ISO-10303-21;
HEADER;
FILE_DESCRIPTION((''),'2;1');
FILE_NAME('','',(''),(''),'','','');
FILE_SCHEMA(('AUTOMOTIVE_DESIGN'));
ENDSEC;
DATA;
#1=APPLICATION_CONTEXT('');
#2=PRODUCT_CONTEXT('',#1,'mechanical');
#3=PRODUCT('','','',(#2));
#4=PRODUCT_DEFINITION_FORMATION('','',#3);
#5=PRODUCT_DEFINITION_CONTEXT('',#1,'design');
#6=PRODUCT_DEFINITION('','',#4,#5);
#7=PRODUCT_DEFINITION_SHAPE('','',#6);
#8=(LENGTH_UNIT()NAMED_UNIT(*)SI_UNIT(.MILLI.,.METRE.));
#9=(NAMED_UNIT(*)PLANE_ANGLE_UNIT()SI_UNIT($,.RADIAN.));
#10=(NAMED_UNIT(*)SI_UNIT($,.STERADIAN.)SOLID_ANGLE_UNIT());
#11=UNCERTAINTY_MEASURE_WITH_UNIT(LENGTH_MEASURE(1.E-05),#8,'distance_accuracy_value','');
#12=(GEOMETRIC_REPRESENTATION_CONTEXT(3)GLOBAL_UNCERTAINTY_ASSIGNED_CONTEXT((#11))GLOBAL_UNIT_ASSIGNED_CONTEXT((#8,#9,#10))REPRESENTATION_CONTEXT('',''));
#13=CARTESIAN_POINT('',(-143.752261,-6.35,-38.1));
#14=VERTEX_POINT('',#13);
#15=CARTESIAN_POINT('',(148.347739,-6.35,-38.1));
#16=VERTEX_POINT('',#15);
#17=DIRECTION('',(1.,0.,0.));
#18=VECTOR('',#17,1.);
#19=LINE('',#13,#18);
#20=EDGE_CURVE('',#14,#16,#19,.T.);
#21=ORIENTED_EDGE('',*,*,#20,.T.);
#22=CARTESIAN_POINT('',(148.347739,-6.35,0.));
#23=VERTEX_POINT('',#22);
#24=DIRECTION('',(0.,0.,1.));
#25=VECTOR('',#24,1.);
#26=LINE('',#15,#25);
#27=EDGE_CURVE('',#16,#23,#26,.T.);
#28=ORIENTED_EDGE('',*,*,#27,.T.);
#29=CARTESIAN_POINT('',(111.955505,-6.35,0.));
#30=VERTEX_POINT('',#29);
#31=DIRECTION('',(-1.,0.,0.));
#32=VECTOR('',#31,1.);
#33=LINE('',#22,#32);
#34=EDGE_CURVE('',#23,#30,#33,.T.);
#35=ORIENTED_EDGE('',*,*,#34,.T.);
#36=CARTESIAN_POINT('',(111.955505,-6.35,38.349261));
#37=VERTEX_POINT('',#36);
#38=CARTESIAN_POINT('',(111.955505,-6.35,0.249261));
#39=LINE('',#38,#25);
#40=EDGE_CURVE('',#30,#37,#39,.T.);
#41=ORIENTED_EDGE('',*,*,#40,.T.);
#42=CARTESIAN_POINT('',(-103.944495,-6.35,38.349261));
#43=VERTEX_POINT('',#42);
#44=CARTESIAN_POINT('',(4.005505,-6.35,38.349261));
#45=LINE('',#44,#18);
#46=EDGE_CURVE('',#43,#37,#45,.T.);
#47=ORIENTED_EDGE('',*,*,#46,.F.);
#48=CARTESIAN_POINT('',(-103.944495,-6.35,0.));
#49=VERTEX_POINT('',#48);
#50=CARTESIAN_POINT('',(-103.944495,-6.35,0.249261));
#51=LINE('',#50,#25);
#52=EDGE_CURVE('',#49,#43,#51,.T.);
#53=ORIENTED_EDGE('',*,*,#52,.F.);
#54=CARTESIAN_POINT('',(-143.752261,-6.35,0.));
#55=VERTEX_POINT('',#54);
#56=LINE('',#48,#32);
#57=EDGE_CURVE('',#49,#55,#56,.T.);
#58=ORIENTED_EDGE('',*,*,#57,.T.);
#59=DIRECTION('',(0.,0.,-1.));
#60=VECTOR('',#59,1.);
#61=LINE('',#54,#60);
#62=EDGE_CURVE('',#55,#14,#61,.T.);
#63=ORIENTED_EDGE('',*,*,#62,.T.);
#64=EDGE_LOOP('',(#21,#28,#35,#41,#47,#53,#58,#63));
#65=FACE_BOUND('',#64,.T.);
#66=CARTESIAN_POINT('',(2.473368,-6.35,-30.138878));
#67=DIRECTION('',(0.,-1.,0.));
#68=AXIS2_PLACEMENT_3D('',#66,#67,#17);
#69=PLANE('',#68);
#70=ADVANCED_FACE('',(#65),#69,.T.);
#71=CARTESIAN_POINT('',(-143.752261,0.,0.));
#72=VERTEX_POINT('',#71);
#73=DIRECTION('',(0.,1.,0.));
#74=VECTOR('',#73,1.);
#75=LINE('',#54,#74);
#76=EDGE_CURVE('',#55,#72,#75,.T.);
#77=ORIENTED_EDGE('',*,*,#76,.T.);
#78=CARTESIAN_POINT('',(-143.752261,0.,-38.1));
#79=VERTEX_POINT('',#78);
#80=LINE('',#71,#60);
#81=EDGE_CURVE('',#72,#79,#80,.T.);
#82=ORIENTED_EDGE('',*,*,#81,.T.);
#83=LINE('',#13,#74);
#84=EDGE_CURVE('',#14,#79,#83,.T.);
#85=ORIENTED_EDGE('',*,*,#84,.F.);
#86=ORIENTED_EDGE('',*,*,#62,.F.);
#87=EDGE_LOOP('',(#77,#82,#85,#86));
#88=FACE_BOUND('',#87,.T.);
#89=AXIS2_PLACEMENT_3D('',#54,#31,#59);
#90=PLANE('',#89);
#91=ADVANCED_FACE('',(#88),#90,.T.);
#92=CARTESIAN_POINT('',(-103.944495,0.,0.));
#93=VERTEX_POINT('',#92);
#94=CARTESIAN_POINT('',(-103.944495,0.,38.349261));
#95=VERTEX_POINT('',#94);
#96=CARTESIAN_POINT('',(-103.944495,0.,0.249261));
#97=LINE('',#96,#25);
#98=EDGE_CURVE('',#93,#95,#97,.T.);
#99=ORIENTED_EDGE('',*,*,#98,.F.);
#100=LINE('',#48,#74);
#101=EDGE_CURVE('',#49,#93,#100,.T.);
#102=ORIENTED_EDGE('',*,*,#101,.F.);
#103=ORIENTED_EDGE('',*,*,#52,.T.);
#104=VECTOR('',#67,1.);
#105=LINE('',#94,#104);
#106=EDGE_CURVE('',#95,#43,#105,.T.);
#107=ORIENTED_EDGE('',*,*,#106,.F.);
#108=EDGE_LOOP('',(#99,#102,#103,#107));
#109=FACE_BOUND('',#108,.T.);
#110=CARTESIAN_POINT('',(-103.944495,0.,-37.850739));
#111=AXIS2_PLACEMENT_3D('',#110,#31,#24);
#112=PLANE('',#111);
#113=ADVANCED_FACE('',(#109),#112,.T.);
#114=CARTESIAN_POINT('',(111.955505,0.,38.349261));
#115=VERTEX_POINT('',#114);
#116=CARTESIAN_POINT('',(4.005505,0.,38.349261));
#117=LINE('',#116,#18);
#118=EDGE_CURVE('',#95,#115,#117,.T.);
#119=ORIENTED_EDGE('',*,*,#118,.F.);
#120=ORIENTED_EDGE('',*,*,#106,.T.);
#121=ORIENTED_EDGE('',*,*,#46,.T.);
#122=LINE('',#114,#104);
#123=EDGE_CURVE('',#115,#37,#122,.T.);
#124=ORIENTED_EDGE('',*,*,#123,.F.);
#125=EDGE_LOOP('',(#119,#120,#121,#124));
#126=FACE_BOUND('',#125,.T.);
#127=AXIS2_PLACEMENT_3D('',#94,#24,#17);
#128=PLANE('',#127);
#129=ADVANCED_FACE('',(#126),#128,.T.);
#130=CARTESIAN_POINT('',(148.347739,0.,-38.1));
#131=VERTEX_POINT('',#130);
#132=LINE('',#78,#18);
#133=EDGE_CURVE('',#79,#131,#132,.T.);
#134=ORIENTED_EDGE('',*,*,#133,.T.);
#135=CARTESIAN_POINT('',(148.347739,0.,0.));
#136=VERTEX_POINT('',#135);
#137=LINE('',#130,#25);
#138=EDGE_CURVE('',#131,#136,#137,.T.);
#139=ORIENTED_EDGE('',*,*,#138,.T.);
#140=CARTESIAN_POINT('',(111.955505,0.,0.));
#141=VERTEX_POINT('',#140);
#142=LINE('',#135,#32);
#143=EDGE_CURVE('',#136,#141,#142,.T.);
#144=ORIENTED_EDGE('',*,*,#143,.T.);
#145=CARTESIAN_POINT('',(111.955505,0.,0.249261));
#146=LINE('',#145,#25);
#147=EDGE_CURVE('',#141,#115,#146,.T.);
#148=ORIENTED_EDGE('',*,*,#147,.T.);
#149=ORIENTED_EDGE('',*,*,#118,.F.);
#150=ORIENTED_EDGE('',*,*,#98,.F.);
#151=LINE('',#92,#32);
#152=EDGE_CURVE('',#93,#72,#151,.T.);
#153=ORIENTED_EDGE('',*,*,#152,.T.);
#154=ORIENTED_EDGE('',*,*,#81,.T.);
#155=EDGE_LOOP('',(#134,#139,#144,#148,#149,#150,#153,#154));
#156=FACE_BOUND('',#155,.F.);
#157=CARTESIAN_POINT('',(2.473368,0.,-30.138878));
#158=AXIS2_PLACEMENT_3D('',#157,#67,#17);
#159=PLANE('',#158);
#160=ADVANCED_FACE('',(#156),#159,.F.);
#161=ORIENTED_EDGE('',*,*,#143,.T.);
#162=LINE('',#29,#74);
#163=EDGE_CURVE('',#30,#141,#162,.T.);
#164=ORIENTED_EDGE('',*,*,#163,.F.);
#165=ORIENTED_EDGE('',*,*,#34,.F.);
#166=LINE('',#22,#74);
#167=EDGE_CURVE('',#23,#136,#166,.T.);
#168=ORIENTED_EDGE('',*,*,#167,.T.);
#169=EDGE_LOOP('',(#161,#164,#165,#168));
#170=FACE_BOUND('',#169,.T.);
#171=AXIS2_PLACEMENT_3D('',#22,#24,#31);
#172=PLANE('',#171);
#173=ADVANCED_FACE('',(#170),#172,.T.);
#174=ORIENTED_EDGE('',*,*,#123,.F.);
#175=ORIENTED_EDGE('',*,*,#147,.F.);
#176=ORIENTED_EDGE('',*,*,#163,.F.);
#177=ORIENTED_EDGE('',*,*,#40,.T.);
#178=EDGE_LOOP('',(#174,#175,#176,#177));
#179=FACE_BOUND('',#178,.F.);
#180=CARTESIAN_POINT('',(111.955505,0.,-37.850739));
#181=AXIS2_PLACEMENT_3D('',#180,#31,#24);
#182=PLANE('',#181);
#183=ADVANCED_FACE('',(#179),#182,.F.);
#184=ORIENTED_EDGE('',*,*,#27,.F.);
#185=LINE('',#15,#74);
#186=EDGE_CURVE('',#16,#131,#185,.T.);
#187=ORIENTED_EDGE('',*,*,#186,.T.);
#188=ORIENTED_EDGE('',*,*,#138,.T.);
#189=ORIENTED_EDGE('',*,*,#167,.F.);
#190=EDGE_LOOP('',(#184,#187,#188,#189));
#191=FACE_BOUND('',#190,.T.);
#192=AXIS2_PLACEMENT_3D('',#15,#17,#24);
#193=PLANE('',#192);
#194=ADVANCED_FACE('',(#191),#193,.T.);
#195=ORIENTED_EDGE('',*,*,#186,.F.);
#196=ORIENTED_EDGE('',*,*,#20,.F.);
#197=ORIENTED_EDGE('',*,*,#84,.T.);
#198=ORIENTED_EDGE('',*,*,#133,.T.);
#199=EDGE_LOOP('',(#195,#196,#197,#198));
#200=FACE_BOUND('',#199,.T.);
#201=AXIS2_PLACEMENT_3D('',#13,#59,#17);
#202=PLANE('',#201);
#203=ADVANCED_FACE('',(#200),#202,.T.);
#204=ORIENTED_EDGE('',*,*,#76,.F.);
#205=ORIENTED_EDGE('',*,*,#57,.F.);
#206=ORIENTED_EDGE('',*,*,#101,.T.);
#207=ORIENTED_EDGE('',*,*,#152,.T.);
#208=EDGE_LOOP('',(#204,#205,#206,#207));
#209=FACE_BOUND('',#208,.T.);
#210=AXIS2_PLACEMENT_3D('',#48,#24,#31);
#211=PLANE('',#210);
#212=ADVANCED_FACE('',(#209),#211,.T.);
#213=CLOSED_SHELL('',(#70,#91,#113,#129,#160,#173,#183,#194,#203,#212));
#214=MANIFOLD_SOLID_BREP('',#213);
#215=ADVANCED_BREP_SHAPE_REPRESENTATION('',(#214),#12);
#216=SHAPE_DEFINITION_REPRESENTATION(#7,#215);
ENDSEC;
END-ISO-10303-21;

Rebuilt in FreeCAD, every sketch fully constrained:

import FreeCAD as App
import Part
import Sketcher
Q = App.Units.Quantity


def add_polygon(sketch, points):
    """Adds a closed chain of lines whose ends are joined by coincident constraints."""
    first, n = sketch.GeometryCount, len(points)
    for a, b in zip(points, points[1:] + points[:1]):
        sketch.addGeometry(Part.LineSegment(App.Vector(*a, 0), App.Vector(*b, 0)), False)
    for i in range(n):
        sketch.addConstraint(Sketcher.Constraint("Coincident", first + i, 2, first + (i + 1) % n, 1))

doc = App.newDocument("Part")
body = doc.addObject("PartDesign::Body", "Body")

# Sketch on XZ plane
sketch1 = body.newObject("Sketcher::SketchObject", "Sketch")
sketch1.AttachmentSupport = (doc.getObject("XZ_Plane"), [""])
sketch1.MapMode = "FlatFace"
add_polygon(sketch1, [(-104, 38), (-104, -38), (112, -38), (112, 38)])  # lines 0-3
sketch1.addConstraint([
    Sketcher.Constraint("Vertical", 0),
    Sketcher.Constraint("Horizontal", 1),
    Sketcher.Constraint("Vertical", 2),
    Sketcher.Constraint("Horizontal", 3),
    Sketcher.Constraint("DistanceY", 0, 2, 0, 1, Q("3 in")),
    Sketcher.Constraint("DistanceX", 1, 1, 1, 2, Q("8.5 in")),
    Sketcher.Constraint("DistanceY", 0, 2, -1, 1, Q("37.850739 mm")),
    Sketcher.Constraint("DistanceX", 0, 2, -1, 1, Q("103.944495 mm")),
])
pad1 = body.newObject("PartDesign::Pad", "Pad")
pad1.Profile = sketch1
pad1.Length = Q("0.25 in")

# Sketch on XZ plane
sketch2 = body.newObject("Sketcher::SketchObject", "Sketch001")
sketch2.AttachmentSupport = (doc.getObject("XZ_Plane"), [""])
sketch2.MapMode = "FlatFace"
sketch2.AttachmentOffset = App.Placement(App.Vector(0, 0, 0.25 * 25.4), App.Rotation())
add_polygon(sketch2, [(-104, 0), (-144, 0), (-144, -38), (148, -38), (148, 0), (112, 0), (112, -38), (-104, -38)])  # lines 0-7
sketch2.addConstraint([
    Sketcher.Constraint("Horizontal", 0),
    Sketcher.Constraint("Vertical", 1),
    Sketcher.Constraint("Horizontal", 2),
    Sketcher.Constraint("Vertical", 3),
    Sketcher.Constraint("Horizontal", 4),
    Sketcher.Constraint("Vertical", 5),
    Sketcher.Constraint("Horizontal", 6),
    Sketcher.Constraint("Vertical", 7),
    Sketcher.Constraint("PointOnObject", 0, 2, -1),
    Sketcher.Constraint("PointOnObject", 3, 2, -1),
    Sketcher.Constraint("DistanceX", 2, 1, 2, 2, Q("11.5 in")),
    Sketcher.Constraint("DistanceX", 6, 2, 6, 1, Q("8.5 in")),
    Sketcher.Constraint("DistanceY", 1, 2, 1, 1, Q("1.5 in")),
    Sketcher.Constraint("DistanceY", 5, 2, 5, 1, Q("37.850739 mm")),
    Sketcher.Constraint("DistanceX", 0, 2, 0, 1, Q("39.807766 mm")),
    Sketcher.Constraint("DistanceX", 0, 2, -1, 1, Q("143.752261 mm")),
])
pad2 = body.newObject("PartDesign::Pad", "Pad001")
pad2.Profile = sketch2
pad2.Length = Q("0.25 in")
pad2.Reversed = True

doc.recompute()
